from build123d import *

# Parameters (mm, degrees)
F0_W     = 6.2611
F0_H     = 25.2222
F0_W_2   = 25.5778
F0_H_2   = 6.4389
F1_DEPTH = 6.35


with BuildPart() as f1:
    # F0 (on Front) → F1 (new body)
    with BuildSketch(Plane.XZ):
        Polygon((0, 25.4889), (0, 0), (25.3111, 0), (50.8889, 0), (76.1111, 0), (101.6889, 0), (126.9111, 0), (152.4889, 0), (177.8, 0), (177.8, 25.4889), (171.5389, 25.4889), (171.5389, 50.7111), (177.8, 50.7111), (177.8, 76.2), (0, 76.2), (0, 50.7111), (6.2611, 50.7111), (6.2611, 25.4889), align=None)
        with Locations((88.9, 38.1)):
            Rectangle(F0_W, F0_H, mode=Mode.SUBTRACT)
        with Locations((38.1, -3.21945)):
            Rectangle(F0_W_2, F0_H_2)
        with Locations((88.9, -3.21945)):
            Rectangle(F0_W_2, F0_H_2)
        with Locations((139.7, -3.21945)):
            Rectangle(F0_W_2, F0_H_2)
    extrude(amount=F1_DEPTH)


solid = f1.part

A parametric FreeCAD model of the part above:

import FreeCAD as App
import Part
import Sketcher

V = App.Vector
Q = App.Units.Quantity


def add_polygon(sketch, points):
    """Adds a closed chain of lines whose ends are joined by coincident constraints."""
    first, n = sketch.GeometryCount, len(points)
    for a, b in zip(points, points[1:] + points[:1]):
        sketch.addGeometry(Part.LineSegment(App.Vector(*a, 0), App.Vector(*b, 0)), False)
    for i in range(n):
        sketch.addConstraint(Sketcher.Constraint("Coincident", first + i, 2, first + (i + 1) % n, 1))

doc = App.newDocument("Part")
body = doc.addObject("PartDesign::Body", "Body")

# Sketch on XZ plane
sketch1 = body.newObject("Sketcher::SketchObject", "Sketch")
sketch1.AttachmentSupport = (doc.getObject("XZ_Plane"), [""])
sketch1.MapMode = "FlatFace"
add_polygon(sketch1, [(0, 25), (0, 0), (25, 0), (25, -6), (51, -6), (51, 0), (76, 0), (76, -6), (102, -6), (102, 0), (127, 0), (127, -6), (152, -6), (152, 0), (178, 0), (178, 25), (172, 25), (172, 51), (178, 51), (178, 76), (0, 76), (0, 51), (6, 51), (6, 25)])  # lines 0-23
add_polygon(sketch1, [(92, 25), (86, 25), (86, 51), (92, 51)])  # lines 24-27
sketch1.addConstraint([
    Sketcher.Constraint("Vertical", 0),
    Sketcher.Constraint("Horizontal", 1),
    Sketcher.Constraint("Vertical", 2),
    Sketcher.Constraint("Horizontal", 3),
    Sketcher.Constraint("Vertical", 4),
    Sketcher.Constraint("Horizontal", 5),
    Sketcher.Constraint("Vertical", 6),
    Sketcher.Constraint("Horizontal", 7),
    Sketcher.Constraint("Vertical", 8),
    Sketcher.Constraint("Horizontal", 9),
    Sketcher.Constraint("Vertical", 10),
    Sketcher.Constraint("Horizontal", 11),
    Sketcher.Constraint("Vertical", 12),
    Sketcher.Constraint("Horizontal", 13),
    Sketcher.Constraint("Vertical", 14),
    Sketcher.Constraint("Horizontal", 15),
    Sketcher.Constraint("Vertical", 16),
    Sketcher.Constraint("Horizontal", 17),
    Sketcher.Constraint("Vertical", 18),
    Sketcher.Constraint("Horizontal", 19),
    Sketcher.Constraint("Vertical", 20),
    Sketcher.Constraint("Horizontal", 21),
    Sketcher.Constraint("Vertical", 22),
    Sketcher.Constraint("Horizontal", 23),
    Sketcher.Constraint("Horizontal", 24),
    Sketcher.Constraint("Vertical", 25),
    Sketcher.Constraint("Horizontal", 26),
    Sketcher.Constraint("Vertical", 27),
    Sketcher.Constraint("Coincident", 0, 2, -1, 1),
    Sketcher.Constraint("PointOnObject", 4, 2, -1),
    Sketcher.Constraint("PointOnObject", 8, 2, -1),
    Sketcher.Constraint("PointOnObject", 12, 2, -1),
    Sketcher.Constraint("PointOnObject", 19, 2, -2),
    Sketcher.Constraint("Horizontal", 3, 2, 6, 2),
    Sketcher.Constraint("Horizontal", 7, 2, 10, 2),
    Sketcher.Constraint("Horizontal", 17, 2, 20, 2),
    Sketcher.Constraint("Horizontal", 15, 2, 22, 2),
    Sketcher.Constraint("Horizontal", 23, 2, 24, 2),
    Sketcher.Constraint("Horizontal", 21, 2, 25, 2),
    Sketcher.Constraint("Vertical", 14, 2, 17, 2),
    Sketcher.Constraint("Equal", 3, 7),
    Sketcher.Constraint("Equal", 5, 9),
    Sketcher.Constraint("Equal", 7, 11),
    Sketcher.Constraint("Equal", 1, 13),
    Sketcher.Constraint("Equal", 17, 21),
    Sketcher.Constraint("Equal", 23, 24),
    Sketcher.Constraint("Equal", 9, 16),
    Sketcher.Constraint("Equal", 14, 18),
    Sketcher.Constraint("DistanceX", 19, 2, 19, 1, Q("7 in")),
    Sketcher.Constraint("DistanceY", -1, 1, 18, 2, Q("3 in")),
    Sketcher.Constraint("DistanceX", 1, 2, 5, 2, Q("2 in")),
    Sketcher.Constraint("DistanceX", 3, 1, 3, 2, Q("1.007 in")),
    Sketcher.Constraint("DistanceX", 12, 2, 15, 2, Q("0.75 in")),
    Sketcher.Constraint("DistanceY", 11, 2, 16, 2, Q("2.25 in")),
    Sketcher.Constraint("DistanceX", -1, 1, 24, 2, Q("85.76945 mm")),
])
pad1 = body.newObject("PartDesign::Pad", "Pad")
pad1.Profile = sketch1
pad1.Length = Q("0.25 in")

doc.recompute()
